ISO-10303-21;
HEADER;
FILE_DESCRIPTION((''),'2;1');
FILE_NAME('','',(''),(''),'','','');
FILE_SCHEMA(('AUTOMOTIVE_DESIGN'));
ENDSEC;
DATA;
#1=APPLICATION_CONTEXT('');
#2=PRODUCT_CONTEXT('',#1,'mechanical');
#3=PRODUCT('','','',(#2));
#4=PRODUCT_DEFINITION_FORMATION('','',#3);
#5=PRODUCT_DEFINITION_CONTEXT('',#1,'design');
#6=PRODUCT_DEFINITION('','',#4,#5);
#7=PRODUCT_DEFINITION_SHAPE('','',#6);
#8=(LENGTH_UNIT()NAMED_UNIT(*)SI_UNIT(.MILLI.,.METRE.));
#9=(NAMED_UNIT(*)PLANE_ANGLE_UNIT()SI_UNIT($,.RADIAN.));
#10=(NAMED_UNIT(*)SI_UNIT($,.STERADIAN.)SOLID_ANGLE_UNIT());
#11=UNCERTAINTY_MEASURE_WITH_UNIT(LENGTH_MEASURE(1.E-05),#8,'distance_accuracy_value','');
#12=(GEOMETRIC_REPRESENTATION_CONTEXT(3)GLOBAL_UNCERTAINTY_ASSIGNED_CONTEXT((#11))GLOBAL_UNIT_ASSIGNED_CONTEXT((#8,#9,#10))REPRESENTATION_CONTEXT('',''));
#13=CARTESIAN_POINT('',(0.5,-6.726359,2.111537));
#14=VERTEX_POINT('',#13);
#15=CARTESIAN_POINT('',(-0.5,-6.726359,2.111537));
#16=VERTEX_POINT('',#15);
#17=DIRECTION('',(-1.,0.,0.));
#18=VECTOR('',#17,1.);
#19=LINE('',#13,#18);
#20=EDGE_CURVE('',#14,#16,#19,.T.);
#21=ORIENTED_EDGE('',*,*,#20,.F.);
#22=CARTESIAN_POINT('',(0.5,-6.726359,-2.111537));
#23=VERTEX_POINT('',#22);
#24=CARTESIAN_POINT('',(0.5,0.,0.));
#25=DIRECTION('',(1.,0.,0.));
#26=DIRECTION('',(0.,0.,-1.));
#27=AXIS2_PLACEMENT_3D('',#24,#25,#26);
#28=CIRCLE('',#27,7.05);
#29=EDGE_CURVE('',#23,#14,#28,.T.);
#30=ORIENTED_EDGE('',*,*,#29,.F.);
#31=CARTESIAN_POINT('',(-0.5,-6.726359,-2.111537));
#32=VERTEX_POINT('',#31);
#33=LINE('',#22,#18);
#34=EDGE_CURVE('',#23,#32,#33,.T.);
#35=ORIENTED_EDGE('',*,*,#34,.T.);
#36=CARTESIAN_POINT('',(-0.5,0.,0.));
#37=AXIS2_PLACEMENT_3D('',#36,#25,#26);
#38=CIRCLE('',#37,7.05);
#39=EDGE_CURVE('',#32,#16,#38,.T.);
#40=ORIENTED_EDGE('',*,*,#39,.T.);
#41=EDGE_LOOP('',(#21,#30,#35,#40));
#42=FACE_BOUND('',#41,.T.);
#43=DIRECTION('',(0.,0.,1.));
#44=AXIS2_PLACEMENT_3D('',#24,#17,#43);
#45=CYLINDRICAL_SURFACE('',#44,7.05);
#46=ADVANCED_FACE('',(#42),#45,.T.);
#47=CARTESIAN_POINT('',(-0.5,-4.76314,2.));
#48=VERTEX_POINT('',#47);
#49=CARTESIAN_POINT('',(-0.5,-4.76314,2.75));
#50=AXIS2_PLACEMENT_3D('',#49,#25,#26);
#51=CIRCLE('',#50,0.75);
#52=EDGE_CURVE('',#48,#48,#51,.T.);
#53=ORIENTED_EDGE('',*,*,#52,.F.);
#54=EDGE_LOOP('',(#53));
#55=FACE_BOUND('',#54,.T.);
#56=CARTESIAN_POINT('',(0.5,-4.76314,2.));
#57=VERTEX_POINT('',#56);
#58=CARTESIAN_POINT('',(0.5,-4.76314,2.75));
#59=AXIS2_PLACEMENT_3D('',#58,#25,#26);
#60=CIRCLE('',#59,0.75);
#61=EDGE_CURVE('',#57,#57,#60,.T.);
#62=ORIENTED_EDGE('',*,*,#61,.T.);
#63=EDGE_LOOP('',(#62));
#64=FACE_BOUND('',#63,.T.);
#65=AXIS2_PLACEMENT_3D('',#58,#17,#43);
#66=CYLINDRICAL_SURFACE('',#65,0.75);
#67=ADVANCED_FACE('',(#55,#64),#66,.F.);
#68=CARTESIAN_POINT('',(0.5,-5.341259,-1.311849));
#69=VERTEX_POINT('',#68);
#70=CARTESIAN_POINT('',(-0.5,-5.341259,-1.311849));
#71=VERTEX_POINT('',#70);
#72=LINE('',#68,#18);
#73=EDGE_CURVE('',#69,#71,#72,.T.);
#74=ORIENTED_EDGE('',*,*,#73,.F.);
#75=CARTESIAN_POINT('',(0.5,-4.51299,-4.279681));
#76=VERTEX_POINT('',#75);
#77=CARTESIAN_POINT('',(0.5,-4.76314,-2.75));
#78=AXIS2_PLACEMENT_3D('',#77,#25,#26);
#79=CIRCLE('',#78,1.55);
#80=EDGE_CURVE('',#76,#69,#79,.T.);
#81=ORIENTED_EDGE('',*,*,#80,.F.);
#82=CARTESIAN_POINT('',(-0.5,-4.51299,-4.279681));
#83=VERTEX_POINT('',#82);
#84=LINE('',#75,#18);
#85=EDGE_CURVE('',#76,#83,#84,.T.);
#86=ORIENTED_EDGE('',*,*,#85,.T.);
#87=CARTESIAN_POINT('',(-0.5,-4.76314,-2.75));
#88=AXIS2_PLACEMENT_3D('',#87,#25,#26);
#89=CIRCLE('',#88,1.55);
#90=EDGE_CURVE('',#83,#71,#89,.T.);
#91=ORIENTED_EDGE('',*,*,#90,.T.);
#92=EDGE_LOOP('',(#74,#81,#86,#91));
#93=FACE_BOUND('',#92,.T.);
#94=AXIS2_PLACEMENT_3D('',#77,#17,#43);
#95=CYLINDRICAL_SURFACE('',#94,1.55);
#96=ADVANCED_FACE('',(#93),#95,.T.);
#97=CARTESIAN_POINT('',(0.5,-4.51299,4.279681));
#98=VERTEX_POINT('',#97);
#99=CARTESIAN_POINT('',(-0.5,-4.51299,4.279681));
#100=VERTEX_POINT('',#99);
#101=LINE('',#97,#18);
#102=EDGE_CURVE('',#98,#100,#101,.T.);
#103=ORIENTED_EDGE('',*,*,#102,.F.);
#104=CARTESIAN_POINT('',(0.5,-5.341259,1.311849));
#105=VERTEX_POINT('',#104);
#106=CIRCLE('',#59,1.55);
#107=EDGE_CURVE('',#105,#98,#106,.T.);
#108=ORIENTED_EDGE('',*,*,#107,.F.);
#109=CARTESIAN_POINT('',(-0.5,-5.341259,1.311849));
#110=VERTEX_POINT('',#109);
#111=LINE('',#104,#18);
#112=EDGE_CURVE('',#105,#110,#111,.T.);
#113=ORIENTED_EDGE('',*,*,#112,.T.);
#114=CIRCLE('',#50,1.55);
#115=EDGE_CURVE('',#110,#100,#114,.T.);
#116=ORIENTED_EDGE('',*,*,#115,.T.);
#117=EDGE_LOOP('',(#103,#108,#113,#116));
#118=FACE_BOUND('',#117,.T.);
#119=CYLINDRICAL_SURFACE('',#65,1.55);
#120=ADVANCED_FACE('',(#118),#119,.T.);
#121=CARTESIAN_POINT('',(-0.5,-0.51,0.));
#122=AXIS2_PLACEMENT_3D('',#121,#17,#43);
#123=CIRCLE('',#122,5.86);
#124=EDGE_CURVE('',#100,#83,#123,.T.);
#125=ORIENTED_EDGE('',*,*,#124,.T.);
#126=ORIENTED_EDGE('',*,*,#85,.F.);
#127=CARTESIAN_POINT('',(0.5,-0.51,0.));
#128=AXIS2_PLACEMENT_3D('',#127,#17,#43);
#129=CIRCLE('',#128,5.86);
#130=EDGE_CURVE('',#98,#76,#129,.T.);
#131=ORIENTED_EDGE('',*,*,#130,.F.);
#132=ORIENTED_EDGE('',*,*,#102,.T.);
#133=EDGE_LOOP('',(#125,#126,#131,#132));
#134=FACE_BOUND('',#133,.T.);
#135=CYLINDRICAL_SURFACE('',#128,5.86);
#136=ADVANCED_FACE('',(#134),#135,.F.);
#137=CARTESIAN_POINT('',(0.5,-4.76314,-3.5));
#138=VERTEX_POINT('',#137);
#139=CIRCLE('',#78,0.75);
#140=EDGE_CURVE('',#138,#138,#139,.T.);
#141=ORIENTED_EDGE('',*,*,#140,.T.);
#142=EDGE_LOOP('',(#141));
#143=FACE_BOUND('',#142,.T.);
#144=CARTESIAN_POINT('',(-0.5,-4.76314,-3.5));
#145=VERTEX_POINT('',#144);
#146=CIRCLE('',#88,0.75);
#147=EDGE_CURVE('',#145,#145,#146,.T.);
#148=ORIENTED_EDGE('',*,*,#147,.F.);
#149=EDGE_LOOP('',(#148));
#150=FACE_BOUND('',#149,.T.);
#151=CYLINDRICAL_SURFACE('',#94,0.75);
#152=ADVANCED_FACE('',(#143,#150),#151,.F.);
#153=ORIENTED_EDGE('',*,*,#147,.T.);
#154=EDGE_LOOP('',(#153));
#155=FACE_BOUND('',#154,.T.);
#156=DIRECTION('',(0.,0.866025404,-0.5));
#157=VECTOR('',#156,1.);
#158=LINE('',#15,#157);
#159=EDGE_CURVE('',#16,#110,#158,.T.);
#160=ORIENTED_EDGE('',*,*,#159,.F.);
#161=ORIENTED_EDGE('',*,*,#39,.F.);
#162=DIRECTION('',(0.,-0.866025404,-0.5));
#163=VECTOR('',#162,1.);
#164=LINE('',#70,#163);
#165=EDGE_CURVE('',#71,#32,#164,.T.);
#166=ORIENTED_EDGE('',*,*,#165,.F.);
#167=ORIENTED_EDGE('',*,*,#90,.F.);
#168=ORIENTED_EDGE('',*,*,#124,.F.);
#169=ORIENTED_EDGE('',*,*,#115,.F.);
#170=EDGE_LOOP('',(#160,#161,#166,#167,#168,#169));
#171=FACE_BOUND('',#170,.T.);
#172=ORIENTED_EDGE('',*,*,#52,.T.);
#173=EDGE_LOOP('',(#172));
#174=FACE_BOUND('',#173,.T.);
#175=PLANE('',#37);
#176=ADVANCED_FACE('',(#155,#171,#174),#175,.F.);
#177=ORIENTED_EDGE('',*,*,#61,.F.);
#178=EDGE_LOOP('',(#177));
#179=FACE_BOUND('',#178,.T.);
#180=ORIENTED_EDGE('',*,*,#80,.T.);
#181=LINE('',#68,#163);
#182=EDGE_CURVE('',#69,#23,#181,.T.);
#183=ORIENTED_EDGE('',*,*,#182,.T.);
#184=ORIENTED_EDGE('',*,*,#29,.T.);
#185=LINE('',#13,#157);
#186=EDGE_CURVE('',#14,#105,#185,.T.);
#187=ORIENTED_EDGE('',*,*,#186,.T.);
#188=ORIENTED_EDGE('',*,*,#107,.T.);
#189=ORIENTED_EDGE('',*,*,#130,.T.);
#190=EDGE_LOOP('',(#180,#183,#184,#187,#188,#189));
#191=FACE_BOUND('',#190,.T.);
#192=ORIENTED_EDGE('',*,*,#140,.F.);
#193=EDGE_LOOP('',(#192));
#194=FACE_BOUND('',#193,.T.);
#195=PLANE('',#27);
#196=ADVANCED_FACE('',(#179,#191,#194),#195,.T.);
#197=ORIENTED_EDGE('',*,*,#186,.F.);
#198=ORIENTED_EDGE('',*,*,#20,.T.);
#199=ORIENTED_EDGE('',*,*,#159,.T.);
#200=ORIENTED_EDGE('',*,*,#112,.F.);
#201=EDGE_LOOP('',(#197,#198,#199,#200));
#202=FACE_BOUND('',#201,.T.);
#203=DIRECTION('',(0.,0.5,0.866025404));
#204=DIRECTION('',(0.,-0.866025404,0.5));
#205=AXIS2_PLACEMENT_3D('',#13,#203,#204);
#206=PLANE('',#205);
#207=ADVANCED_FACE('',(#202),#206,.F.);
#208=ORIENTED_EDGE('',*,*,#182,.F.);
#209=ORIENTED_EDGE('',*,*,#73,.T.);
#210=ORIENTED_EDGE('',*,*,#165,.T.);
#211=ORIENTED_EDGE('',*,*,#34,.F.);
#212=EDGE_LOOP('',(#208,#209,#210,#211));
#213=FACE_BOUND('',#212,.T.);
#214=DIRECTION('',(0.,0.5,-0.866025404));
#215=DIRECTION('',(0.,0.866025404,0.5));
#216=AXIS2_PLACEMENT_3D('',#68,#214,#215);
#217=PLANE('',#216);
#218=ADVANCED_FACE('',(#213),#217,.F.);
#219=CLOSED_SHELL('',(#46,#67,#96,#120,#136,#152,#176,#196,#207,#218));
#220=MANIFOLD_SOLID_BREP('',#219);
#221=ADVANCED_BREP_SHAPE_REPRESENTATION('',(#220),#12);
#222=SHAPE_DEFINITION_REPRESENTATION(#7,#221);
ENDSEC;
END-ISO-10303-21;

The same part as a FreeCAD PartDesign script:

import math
import FreeCAD as App
import Part
import Sketcher
from FreeCAD import Vector
Q = App.Units.Quantity

doc = App.newDocument("Part")
body = doc.addObject("PartDesign::Body", "Body")

sketch1 = body.newObject("Sketcher::SketchObject", "Sketch")
sketch1.AttachmentSupport = (doc.getObject("YZ_Plane"), [""])
sketch1.MapMode = "FlatFace"
sketch1.addGeometry([
    Part.LineSegment(Vector(-6.7, 2.1, 0), Vector(-5.3, 1.3, 0)),
    Part.ArcOfCircle(Part.Circle(Vector(-4.8, 2.8, 0), Vector(0, 0, 1), 1.6), math.radians(-112), math.radians(81)),
    Part.ArcOfCircle(Part.Circle(Vector(-0.5, 0, 0), Vector(0, 0, 1), 5.9), math.radians(-133), math.radians(133)),
    Part.ArcOfCircle(Part.Circle(Vector(-4.8, -2.8, 0), Vector(0, 0, 1), 1.6), math.radians(-81), math.radians(112)),
    Part.LineSegment(Vector(-5.3, -1.3, 0), Vector(-6.7, -2.1, 0)),
    Part.ArcOfCircle(Part.Circle(Vector(0, 0, 0), Vector(0, 0, 1), 7), math.radians(-163), math.radians(163)),
    Part.Circle(Vector(-4.8, 2.8, 0), Vector(0, 0, 1), 0.8),
    Part.Circle(Vector(-4.8, -2.8, 0), Vector(0, 0, 1), 0.8),
], False)
sketch1.addConstraint([
    Sketcher.Constraint("Coincident", 0, 2, 1, 1),
    Sketcher.Constraint("Coincident", 1, 2, 2, 2),
    Sketcher.Constraint("Coincident", 2, 1, 3, 1),
    Sketcher.Constraint("Coincident", 3, 2, 4, 1),
    Sketcher.Constraint("Coincident", 4, 2, 5, 1),
    Sketcher.Constraint("Coincident", 5, 2, 0, 1),
    Sketcher.Constraint("Coincident", 5, 3, -1, 1),
    Sketcher.Constraint("Coincident", 6, 3, 1, 3),
    Sketcher.Constraint("Coincident", 7, 3, 3, 3),
    Sketcher.Constraint("Equal", 1, 3),
    Sketcher.Constraint("Equal", 6, 7),
    Sketcher.Constraint("Symmetric", 1, 3, 3, 3, -1),
    Sketcher.Constraint("PointOnObject", 2, 3, -1),
    Sketcher.Constraint("Vertical", 0, 2, 3, 2),
    Sketcher.Constraint("Vertical", 4, 2, 5, 2),
    Sketcher.Constraint("Diameter", 6, 1.5),
    Sketcher.Constraint("Angle", 0, Q("-30 deg")),
    Sketcher.Constraint("Radius", 1, 1.55),
    Sketcher.Constraint("Radius", 2, 5.86),
    Sketcher.Constraint("Radius", 5, 7.05),
    Sketcher.Constraint("DistanceY", 3, 3, 1, 3, 5.5),
    Sketcher.Constraint("DistanceX", 2, 3, -1, 1, 0.51),
    Sketcher.Constraint("DistanceY", 3, 2, 0, 2, 2.623698),
    Sketcher.Constraint("DistanceX", 4, 2, 3, 2, 1.3851),
])
pad1 = body.newObject("PartDesign::Pad", "Pad")
pad1.Profile = sketch1
pad1.Type = "TwoLengths"
pad1.Length = 0.5
pad1.Length2 = 0.5

doc.recompute()
